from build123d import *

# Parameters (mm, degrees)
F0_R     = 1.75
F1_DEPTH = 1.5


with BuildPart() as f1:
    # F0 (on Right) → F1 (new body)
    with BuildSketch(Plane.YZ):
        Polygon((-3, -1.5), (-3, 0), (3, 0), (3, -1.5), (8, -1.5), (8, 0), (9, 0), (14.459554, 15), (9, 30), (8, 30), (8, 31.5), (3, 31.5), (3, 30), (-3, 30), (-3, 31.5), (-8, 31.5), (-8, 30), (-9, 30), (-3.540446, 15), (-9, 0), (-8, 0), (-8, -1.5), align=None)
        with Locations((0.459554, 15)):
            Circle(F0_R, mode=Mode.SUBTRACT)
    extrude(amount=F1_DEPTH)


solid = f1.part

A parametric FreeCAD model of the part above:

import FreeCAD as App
import Part
import Sketcher

V = App.Vector
Q = App.Units.Quantity

doc = App.newDocument("Part")
body = doc.addObject("PartDesign::Body", "Body")

sketch1 = body.newObject("Sketcher::SketchObject", "Sketch")
sketch1.AttachmentSupport = (doc.getObject("YZ_Plane"), [""])
sketch1.MapMode = "FlatFace"
sketch1.addGeometry([
    Part.LineSegment(V(-3, -1.5, 0), V(-3, 0, 0)),
    Part.LineSegment(V(-3, 0, 0), V(3, 0, 0)),
    Part.LineSegment(V(3, 0, 0), V(3, -1.5, 0)),
    Part.LineSegment(V(3, -1.5, 0), V(8, -1.5, 0)),
    Part.LineSegment(V(8, -1.5, 0), V(8, 0, 0)),
    Part.LineSegment(V(8, 0, 0), V(9, 0, 0)),
    Part.LineSegment(V(9, 0, 0), V(14.5, 15, 0)),
    Part.LineSegment(V(14.5, 15, 0), V(9, 30, 0)),
    Part.LineSegment(V(9, 30, 0), V(8, 30, 0)),
    Part.LineSegment(V(8, 30, 0), V(8, 31.5, 0)),
    Part.LineSegment(V(8, 31.5, 0), V(3, 31.5, 0)),
    Part.LineSegment(V(3, 31.5, 0), V(3, 30, 0)),
    Part.LineSegment(V(3, 30, 0), V(-3, 30, 0)),
    Part.LineSegment(V(-3, 30, 0), V(-3, 31.5, 0)),
    Part.LineSegment(V(-3, 31.5, 0), V(-8, 31.5, 0)),
    Part.LineSegment(V(-8, 31.5, 0), V(-8, 30, 0)),
    Part.LineSegment(V(-8, 30, 0), V(-9, 30, 0)),
    Part.LineSegment(V(-9, 30, 0), V(-3.5, 15, 0)),
    Part.LineSegment(V(-3.5, 15, 0), V(-9, 0, 0)),
    Part.LineSegment(V(-9, 0, 0), V(-8, 0, 0)),
    Part.LineSegment(V(-8, 0, 0), V(-8, -1.5, 0)),
    Part.LineSegment(V(-8, -1.5, 0), V(-3, -1.5, 0)),
    Part.Circle(V(0.5, 15, 0), V(0, 0, 1), 1.8),
], False)
sketch1.addConstraint([
    Sketcher.Constraint("Coincident", 0, 2, 1, 1),
    Sketcher.Constraint("Coincident", 1, 2, 2, 1),
    Sketcher.Constraint("Coincident", 2, 2, 3, 1),
    Sketcher.Constraint("Coincident", 3, 2, 4, 1),
    Sketcher.Constraint("Coincident", 4, 2, 5, 1),
    Sketcher.Constraint("Coincident", 5, 2, 6, 1),
    Sketcher.Constraint("Coincident", 6, 2, 7, 1),
    Sketcher.Constraint("Coincident", 7, 2, 8, 1),
    Sketcher.Constraint("Coincident", 8, 2, 9, 1),
    Sketcher.Constraint("Coincident", 9, 2, 10, 1),
    Sketcher.Constraint("Coincident", 10, 2, 11, 1),
    Sketcher.Constraint("Coincident", 11, 2, 12, 1),
    Sketcher.Constraint("Coincident", 12, 2, 13, 1),
    Sketcher.Constraint("Coincident", 13, 2, 14, 1),
    Sketcher.Constraint("Coincident", 14, 2, 15, 1),
    Sketcher.Constraint("Coincident", 15, 2, 16, 1),
    Sketcher.Constraint("Coincident", 16, 2, 17, 1),
    Sketcher.Constraint("Coincident", 17, 2, 18, 1),
    Sketcher.Constraint("Coincident", 18, 2, 19, 1),
    Sketcher.Constraint("Coincident", 19, 2, 20, 1),
    Sketcher.Constraint("Coincident", 20, 2, 21, 1),
    Sketcher.Constraint("Coincident", 21, 2, 0, 1),
    Sketcher.Constraint("Vertical", 0),
    Sketcher.Constraint("Horizontal", 1),
    Sketcher.Constraint("Vertical", 2),
    Sketcher.Constraint("Horizontal", 3),
    Sketcher.Constraint("Vertical", 4),
    Sketcher.Constraint("Horizontal", 5),
    Sketcher.Constraint("Horizontal", 8),
    Sketcher.Constraint("Vertical", 9),
    Sketcher.Constraint("Horizontal", 10),
    Sketcher.Constraint("Vertical", 11),
    Sketcher.Constraint("Horizontal", 12),
    Sketcher.Constraint("Vertical", 13),
    Sketcher.Constraint("Horizontal", 14),
    Sketcher.Constraint("Vertical", 15),
    Sketcher.Constraint("Horizontal", 16),
    Sketcher.Constraint("Horizontal", 19),
    Sketcher.Constraint("Vertical", 20),
    Sketcher.Constraint("Horizontal", 21),
    Sketcher.Constraint("Symmetric", 0, 2, 1, 2, -1, 1),
    Sketcher.Constraint("Symmetric", 5, 2, 18, 2, -1, 1),
    Sketcher.Constraint("Symmetric", 10, 2, 13, 2, -2),
    Sketcher.Constraint("Symmetric", 8, 2, 15, 2, -2),
    Sketcher.Constraint("Symmetric", 4, 2, 19, 2, -2),
    Sketcher.Constraint("Parallel", 7, 17),
    Sketcher.Constraint("Parallel", 6, 18),
    Sketcher.Constraint("Horizontal", 22, 3, 6, 2),
    Sketcher.Constraint("Horizontal", 8, 2, 11, 2),
    Sketcher.Constraint("Horizontal", 6, 2, 17, 2),
    Sketcher.Constraint("Horizontal", 3, 2, 20, 2),
    Sketcher.Constraint("Vertical", 5, 2, 7, 2),
    Sketcher.Constraint("Vertical", 4, 2, 8, 2),
    Sketcher.Constraint("Vertical", 2, 2, 10, 2),
    Sketcher.Constraint("Equal", 4, 9),
    Sketcher.Constraint("Equal", 6, 7),
    Sketcher.Constraint("Diameter", 22, Q("3.5 mm")),
    Sketcher.Constraint("DistanceX", 1, 1, 1, 2, Q("6 mm")),
    Sketcher.Constraint("DistanceX", 3, 1, 3, 2, Q("5 mm")),
    Sketcher.Constraint("DistanceX", 5, 1, 5, 2, Q("1 mm")),
    Sketcher.Constraint("Angle", 6, Q("69.999998 deg")),
    Sketcher.Constraint("DistanceY", 0, 1, 0, 2, Q("1.5 mm")),
    Sketcher.Constraint("DistanceY", -1, 1, 22, 3, Q("15 mm")),
    Sketcher.Constraint("DistanceX", 22, 3, 6, 2, Q("14 mm")),
])
pad1 = body.newObject("PartDesign::Pad", "Pad")
pad1.Profile = sketch1
pad1.Length = 1.5

doc.recompute()
